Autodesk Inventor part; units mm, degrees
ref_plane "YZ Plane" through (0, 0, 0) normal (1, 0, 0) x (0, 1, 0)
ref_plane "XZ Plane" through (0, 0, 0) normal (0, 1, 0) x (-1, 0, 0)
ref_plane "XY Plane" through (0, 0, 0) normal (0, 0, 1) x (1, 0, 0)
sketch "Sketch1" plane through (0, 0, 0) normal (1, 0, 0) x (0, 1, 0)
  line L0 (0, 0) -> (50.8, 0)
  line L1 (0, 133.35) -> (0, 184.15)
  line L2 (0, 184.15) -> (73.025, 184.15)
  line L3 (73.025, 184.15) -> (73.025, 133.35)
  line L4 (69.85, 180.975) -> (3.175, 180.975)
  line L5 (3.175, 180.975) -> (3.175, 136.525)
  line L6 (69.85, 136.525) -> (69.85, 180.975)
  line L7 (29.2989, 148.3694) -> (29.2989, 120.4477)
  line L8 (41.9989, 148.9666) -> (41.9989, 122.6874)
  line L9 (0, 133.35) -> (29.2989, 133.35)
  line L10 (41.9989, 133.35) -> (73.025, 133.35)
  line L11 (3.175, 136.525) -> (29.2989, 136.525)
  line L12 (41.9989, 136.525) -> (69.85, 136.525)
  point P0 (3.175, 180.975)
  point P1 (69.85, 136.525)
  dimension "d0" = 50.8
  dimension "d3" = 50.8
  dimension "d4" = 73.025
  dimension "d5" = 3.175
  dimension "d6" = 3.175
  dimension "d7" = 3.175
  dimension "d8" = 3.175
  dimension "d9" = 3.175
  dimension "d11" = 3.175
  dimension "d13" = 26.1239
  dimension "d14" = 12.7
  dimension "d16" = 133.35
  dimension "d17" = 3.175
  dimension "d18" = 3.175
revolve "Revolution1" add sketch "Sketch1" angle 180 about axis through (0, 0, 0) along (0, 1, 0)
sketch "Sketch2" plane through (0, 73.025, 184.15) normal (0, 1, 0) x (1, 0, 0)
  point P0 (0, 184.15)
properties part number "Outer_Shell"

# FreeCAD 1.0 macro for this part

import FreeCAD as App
import Part
import Sketcher

V = App.Vector
Q = App.Units.Quantity


def add_polygon(sketch, points):
    """Adds a closed chain of lines whose ends are joined by coincident constraints."""
    first, n = sketch.GeometryCount, len(points)
    for a, b in zip(points, points[1:] + points[:1]):
        sketch.addGeometry(Part.LineSegment(App.Vector(*a, 0), App.Vector(*b, 0)), False)
    for i in range(n):
        sketch.addConstraint(Sketcher.Constraint("Coincident", first + i, 2, first + (i + 1) % n, 1))

doc = App.newDocument("Part")
body = doc.addObject("PartDesign::Body", "Body")

# Sketch on YZ plane
sketch1 = body.newObject("Sketcher::SketchObject", "Sketch")
sketch1.AttachmentSupport = (doc.getObject("YZ_Plane"), [""])
sketch1.MapMode = "FlatFace"
add_polygon(sketch1, [(0, 184.15), (0, 133.35), (29.2989, 133.35), (29.2989, 136.525), (3.175, 136.525), (3.175, 180.975), (69.85, 180.975), (69.85, 136.525), (41.9989, 136.525), (41.9989, 133.35), (73.025, 133.35), (73.025, 184.15)])  # lines 0-11
sketch1.addConstraint(Sketcher.Constraint("Vertical", 0))
sketch1.addConstraint(Sketcher.Constraint("Horizontal", 1))
sketch1.addConstraint(Sketcher.Constraint("Vertical", 2))
sketch1.addConstraint(Sketcher.Constraint("Horizontal", 3))
sketch1.addConstraint(Sketcher.Constraint("Vertical", 4))
sketch1.addConstraint(Sketcher.Constraint("Horizontal", 5))
sketch1.addConstraint(Sketcher.Constraint("Vertical", 6))
sketch1.addConstraint(Sketcher.Constraint("Horizontal", 7))
sketch1.addConstraint(Sketcher.Constraint("Vertical", 8))
sketch1.addConstraint(Sketcher.Constraint("Horizontal", 9))
sketch1.addConstraint(Sketcher.Constraint("Vertical", 10))
sketch1.addConstraint(Sketcher.Constraint("Horizontal", 11))
sketch1.addConstraint(Sketcher.Constraint("PointOnObject", 0, 2, -2))
sketch1.addConstraint(Sketcher.Constraint("Horizontal", 3, 2, 6, 2))
sketch1.addConstraint(Sketcher.Constraint("Horizontal", 1, 2, 8, 2))
sketch1.addConstraint(Sketcher.Constraint("DistanceY", 0, 2, 0, 1, Q("2 in")))
sketch1.addConstraint(Sketcher.Constraint("DistanceX", 2, 2, 7, 2, Q("0.5 in")))
sketch1.addConstraint(Sketcher.Constraint("DistanceX", 11, 2, 11, 1, Q("2.875 in")))
sketch1.addConstraint(Sketcher.Constraint("DistanceY", 2, 1, 2, 2, Q("0.125 in")))
sketch1.addConstraint(Sketcher.Constraint("DistanceY", -1, 1, 0, 2, Q("5.25 in")))
sketch1.addConstraint(Sketcher.Constraint("DistanceX", 3, 2, 3, 1, Q("1.0285 in")))
sketch1.addConstraint(Sketcher.Constraint("DistanceX", -1, 1, 3, 2, Q("0.125 in")))
sketch1.addConstraint(Sketcher.Constraint("DistanceX", 6, 2, 9, 2, Q("0.125 in")))
sketch1.addConstraint(Sketcher.Constraint("DistanceY", 5, 2, 10, 2, Q("0.125 in")))
revolution = body.newObject("PartDesign::Revolution", "Revolution")
revolution.Profile = sketch1
revolution.ReferenceAxis = (sketch1, ["H_Axis"])
revolution.Angle = 180

doc.recompute()
